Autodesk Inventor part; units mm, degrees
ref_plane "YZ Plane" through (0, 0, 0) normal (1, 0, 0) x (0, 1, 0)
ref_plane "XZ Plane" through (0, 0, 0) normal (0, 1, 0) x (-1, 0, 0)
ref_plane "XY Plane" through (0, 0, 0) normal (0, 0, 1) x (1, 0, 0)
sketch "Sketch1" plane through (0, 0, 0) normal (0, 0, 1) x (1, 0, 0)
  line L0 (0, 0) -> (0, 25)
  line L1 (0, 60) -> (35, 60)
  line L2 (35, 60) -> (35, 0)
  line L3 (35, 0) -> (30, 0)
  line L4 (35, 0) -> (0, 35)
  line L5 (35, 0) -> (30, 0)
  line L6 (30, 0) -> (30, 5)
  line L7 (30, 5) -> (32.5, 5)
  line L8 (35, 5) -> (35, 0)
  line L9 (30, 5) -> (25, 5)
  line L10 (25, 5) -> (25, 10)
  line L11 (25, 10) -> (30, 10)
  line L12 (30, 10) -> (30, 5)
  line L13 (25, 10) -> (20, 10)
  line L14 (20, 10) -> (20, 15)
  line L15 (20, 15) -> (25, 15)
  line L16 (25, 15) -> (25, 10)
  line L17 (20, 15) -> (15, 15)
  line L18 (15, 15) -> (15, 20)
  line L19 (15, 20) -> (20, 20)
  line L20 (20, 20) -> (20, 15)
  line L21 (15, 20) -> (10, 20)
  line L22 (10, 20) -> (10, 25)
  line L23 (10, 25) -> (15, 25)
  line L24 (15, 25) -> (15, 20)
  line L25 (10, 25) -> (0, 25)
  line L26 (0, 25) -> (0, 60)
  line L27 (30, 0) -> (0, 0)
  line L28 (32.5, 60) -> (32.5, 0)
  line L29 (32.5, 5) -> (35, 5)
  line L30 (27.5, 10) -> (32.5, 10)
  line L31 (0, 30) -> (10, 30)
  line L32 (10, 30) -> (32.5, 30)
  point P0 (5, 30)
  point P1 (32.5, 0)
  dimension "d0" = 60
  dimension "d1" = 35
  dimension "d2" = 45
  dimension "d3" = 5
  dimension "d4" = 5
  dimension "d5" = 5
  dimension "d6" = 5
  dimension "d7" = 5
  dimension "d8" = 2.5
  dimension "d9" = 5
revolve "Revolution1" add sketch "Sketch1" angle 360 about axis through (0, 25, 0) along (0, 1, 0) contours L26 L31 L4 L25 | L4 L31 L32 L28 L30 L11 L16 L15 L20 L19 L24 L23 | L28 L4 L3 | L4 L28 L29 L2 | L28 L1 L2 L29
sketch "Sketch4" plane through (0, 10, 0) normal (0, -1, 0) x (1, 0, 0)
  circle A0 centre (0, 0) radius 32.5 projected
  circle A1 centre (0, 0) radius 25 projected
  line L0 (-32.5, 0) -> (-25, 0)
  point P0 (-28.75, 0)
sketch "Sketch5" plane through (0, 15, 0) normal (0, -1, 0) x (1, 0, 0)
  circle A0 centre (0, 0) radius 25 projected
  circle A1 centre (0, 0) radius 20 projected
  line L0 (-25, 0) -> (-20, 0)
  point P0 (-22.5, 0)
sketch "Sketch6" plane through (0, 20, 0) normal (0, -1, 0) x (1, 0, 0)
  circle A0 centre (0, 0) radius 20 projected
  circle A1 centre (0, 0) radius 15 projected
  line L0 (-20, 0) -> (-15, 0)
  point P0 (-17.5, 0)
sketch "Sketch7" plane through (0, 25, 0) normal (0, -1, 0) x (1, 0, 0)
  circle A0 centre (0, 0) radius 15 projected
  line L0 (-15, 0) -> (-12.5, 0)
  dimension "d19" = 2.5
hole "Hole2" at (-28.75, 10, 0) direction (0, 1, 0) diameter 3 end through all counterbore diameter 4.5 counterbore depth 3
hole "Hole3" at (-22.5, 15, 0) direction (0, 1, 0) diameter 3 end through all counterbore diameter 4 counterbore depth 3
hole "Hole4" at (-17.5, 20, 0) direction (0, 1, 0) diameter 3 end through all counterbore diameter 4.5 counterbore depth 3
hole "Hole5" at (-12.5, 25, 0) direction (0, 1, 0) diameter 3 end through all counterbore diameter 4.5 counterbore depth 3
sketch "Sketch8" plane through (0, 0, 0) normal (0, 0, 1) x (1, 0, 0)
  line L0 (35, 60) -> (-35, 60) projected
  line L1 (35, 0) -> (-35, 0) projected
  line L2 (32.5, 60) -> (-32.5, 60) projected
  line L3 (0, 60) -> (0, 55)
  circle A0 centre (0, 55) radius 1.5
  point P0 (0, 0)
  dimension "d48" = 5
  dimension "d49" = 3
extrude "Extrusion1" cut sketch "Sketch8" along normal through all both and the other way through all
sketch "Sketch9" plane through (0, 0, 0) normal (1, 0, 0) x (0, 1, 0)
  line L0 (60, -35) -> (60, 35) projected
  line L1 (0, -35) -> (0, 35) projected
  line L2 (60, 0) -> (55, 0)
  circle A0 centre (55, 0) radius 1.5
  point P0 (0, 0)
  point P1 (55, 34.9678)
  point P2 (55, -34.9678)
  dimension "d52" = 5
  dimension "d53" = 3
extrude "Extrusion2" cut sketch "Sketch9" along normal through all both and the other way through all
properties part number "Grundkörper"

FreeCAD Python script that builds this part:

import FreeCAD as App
import Part
import Sketcher

V = App.Vector

doc = App.newDocument("Part")
body = doc.addObject("PartDesign::Body", "Body")

sketch1 = body.newObject("Sketcher::SketchObject", "Sketch")
sketch1.AttachmentSupport = (doc.getObject("XY_Plane"), [""])
sketch1.MapMode = "FlatFace"
sketch1.addGeometry([
    Part.LineSegment(V(0, 30, 0), V(0, 25, 0)),
    Part.LineSegment(V(0, 25, 0), V(15, 25, 0)),
    Part.LineSegment(V(15, 25, 0), V(15, 20, 0)),
    Part.LineSegment(V(15, 20, 0), V(20, 20, 0)),
    Part.LineSegment(V(20, 20, 0), V(20, 15, 0)),
    Part.LineSegment(V(20, 15, 0), V(25, 15, 0)),
    Part.LineSegment(V(25, 15, 0), V(25, 10, 0)),
    Part.LineSegment(V(25, 10, 0), V(32.5, 10, 0)),
    Part.LineSegment(V(32.5, 10, 0), V(32.5, 0, 0)),
    Part.LineSegment(V(32.5, 0, 0), V(35, 0, 0)),
    Part.LineSegment(V(35, 0, 0), V(35, 60, 0)),
    Part.LineSegment(V(35, 60, 0), V(32.5, 60, 0)),
    Part.LineSegment(V(32.5, 60, 0), V(32.5, 30, 0)),
    Part.LineSegment(V(32.5, 30, 0), V(0, 30, 0)),
], False)
sketch1.addConstraint([
    Sketcher.Constraint("Coincident", 0, 2, 1, 1),
    Sketcher.Constraint("Coincident", 1, 2, 2, 1),
    Sketcher.Constraint("Coincident", 2, 2, 3, 1),
    Sketcher.Constraint("Coincident", 3, 2, 4, 1),
    Sketcher.Constraint("Coincident", 4, 2, 5, 1),
    Sketcher.Constraint("Coincident", 5, 2, 6, 1),
    Sketcher.Constraint("Coincident", 6, 2, 7, 1),
    Sketcher.Constraint("Coincident", 7, 2, 8, 1),
    Sketcher.Constraint("Coincident", 8, 2, 9, 1),
    Sketcher.Constraint("Coincident", 9, 2, 10, 1),
    Sketcher.Constraint("Coincident", 10, 2, 11, 1),
    Sketcher.Constraint("Coincident", 11, 2, 12, 1),
    Sketcher.Constraint("Coincident", 12, 2, 13, 1),
    Sketcher.Constraint("Coincident", 13, 2, 0, 1),
    Sketcher.Constraint("Vertical", 0),
    Sketcher.Constraint("Horizontal", 1),
    Sketcher.Constraint("Vertical", 2),
    Sketcher.Constraint("Horizontal", 3),
    Sketcher.Constraint("Vertical", 4),
    Sketcher.Constraint("Horizontal", 5),
    Sketcher.Constraint("Vertical", 6),
    Sketcher.Constraint("Horizontal", 7),
    Sketcher.Constraint("Vertical", 8),
    Sketcher.Constraint("Horizontal", 9),
    Sketcher.Constraint("Vertical", 10),
    Sketcher.Constraint("Horizontal", 11),
    Sketcher.Constraint("Vertical", 12),
    Sketcher.Constraint("Horizontal", 13),
    Sketcher.Constraint("PointOnObject", 0, 2, -2),
    Sketcher.Constraint("PointOnObject", 8, 2, -1),
    Sketcher.Constraint("Vertical", 8, 2, 11, 2),
    Sketcher.Constraint("Equal", 3, 5),
    Sketcher.Constraint("Equal", 5, 0),
    Sketcher.Constraint("Equal", 0, 2),
    Sketcher.Constraint("Equal", 2, 4),
    Sketcher.Constraint("Equal", 4, 6),
    Sketcher.Constraint("DistanceX", 3, 1, 3, 2, 5.0),
    Sketcher.Constraint("DistanceY", 10, 1, 10, 2, 60.0),
    Sketcher.Constraint("DistanceX", 9, 1, 9, 2, 2.5),
    Sketcher.Constraint("DistanceX", -1, 1, 9, 2, 35.0),
    Sketcher.Constraint("DistanceY", 1, 2, 10, 2, 35.0),
    Sketcher.Constraint("DistanceX", 1, 1, 1, 2, 15.0),
])
revolution = body.newObject("PartDesign::Revolution", "Revolution")
revolution.Profile = sketch1
revolution.ReferenceAxis = (sketch1, ["V_Axis"])
revolution.Angle = 360

sketch2 = body.newObject("Sketcher::SketchObject", "Sketch001")
sketch2.AttachmentSupport = (doc.getObject("XZ_Plane"), [""])
sketch2.MapMode = "FlatFace"
sketch2.AttachmentOffset = App.Placement(V(0, 0, -10), App.Rotation())
sketch2.addGeometry(Part.Circle(V(-28.8, 0, 0), V(0, 0, 1), 1.5), False)
sketch2.addConstraint([
    Sketcher.Constraint("PointOnObject", 0, 3, -1),
    Sketcher.Constraint("Diameter", 0, 3.0),
    Sketcher.Constraint("DistanceX", 0, 3, -1, 1, 28.75),
])
doc.recompute()
hole = body.newObject("PartDesign::Hole", "Hole")
hole.Profile = sketch2
hole.ThreadType = "None"
hole.Diameter = 3
hole.DepthType = "ThroughAll"
hole.HoleCutType = "Counterbore"
hole.HoleCutDiameter = 4.5
hole.HoleCutDepth = 3

sketch3 = body.newObject("Sketcher::SketchObject", "Sketch002")
sketch3.AttachmentSupport = (doc.getObject("XZ_Plane"), [""])
sketch3.MapMode = "FlatFace"
sketch3.AttachmentOffset = App.Placement(V(0, 0, -15), App.Rotation())
sketch3.addGeometry(Part.Circle(V(-22.5, 0, 0), V(0, 0, 1), 1.5), False)
sketch3.addConstraint([
    Sketcher.Constraint("PointOnObject", 0, 3, -1),
    Sketcher.Constraint("Diameter", 0, 3.0),
    Sketcher.Constraint("DistanceX", 0, 3, -1, 1, 22.5),
])
doc.recompute()
hole2 = body.newObject("PartDesign::Hole", "Hole001")
hole2.Profile = sketch3
hole2.ThreadType = "None"
hole2.Diameter = 3
hole2.DepthType = "ThroughAll"
hole2.HoleCutType = "Counterbore"
hole2.HoleCutDiameter = 4
hole2.HoleCutDepth = 3

sketch4 = body.newObject("Sketcher::SketchObject", "Sketch003")
sketch4.AttachmentSupport = (doc.getObject("XZ_Plane"), [""])
sketch4.MapMode = "FlatFace"
sketch4.AttachmentOffset = App.Placement(V(0, 0, -20), App.Rotation())
sketch4.addGeometry(Part.Circle(V(-17.5, 0, 0), V(0, 0, 1), 1.5), False)
sketch4.addConstraint([
    Sketcher.Constraint("PointOnObject", 0, 3, -1),
    Sketcher.Constraint("Diameter", 0, 3.0),
    Sketcher.Constraint("DistanceX", 0, 3, -1, 1, 17.5),
])
doc.recompute()
hole3 = body.newObject("PartDesign::Hole", "Hole002")
hole3.Profile = sketch4
hole3.ThreadType = "None"
hole3.Diameter = 3
hole3.DepthType = "ThroughAll"
hole3.HoleCutType = "Counterbore"
hole3.HoleCutDiameter = 4.5
hole3.HoleCutDepth = 3

sketch5 = body.newObject("Sketcher::SketchObject", "Sketch004")
sketch5.AttachmentSupport = (doc.getObject("XZ_Plane"), [""])
sketch5.MapMode = "FlatFace"
sketch5.AttachmentOffset = App.Placement(V(0, 0, -25), App.Rotation())
sketch5.addGeometry(Part.Circle(V(-12.5, 0, 0), V(0, 0, 1), 1.5), False)
sketch5.addConstraint([
    Sketcher.Constraint("PointOnObject", 0, 3, -1),
    Sketcher.Constraint("Diameter", 0, 3.0),
    Sketcher.Constraint("DistanceX", 0, 3, -1, 1, 12.5),
])
doc.recompute()
hole4 = body.newObject("PartDesign::Hole", "Hole003")
hole4.Profile = sketch5
hole4.ThreadType = "None"
hole4.Diameter = 3
hole4.DepthType = "ThroughAll"
hole4.HoleCutType = "Counterbore"
hole4.HoleCutDiameter = 4.5
hole4.HoleCutDepth = 3

sketch6 = body.newObject("Sketcher::SketchObject", "Sketch005")
sketch6.AttachmentSupport = (doc.getObject("XY_Plane"), [""])
sketch6.MapMode = "FlatFace"
sketch6.addGeometry(Part.Circle(V(0, 55, 0), V(0, 0, 1), 1.5), False)
sketch6.addConstraint([
    Sketcher.Constraint("PointOnObject", 0, 3, -2),
    Sketcher.Constraint("Diameter", 0, 3.0),
    Sketcher.Constraint("DistanceY", -1, 1, 0, 3, 55.0),
])
pocket1 = body.newObject("PartDesign::Pocket", "Pocket")
pocket1.Profile = sketch6
pocket1.Type = "ThroughAll"
pocket1.Midplane = True

sketch7 = body.newObject("Sketcher::SketchObject", "Sketch006")
sketch7.AttachmentSupport = (doc.getObject("YZ_Plane"), [""])
sketch7.MapMode = "FlatFace"
sketch7.addGeometry(Part.Circle(V(55, 0, 0), V(0, 0, 1), 1.5), False)
sketch7.addConstraint([
    Sketcher.Constraint("PointOnObject", 0, 3, -1),
    Sketcher.Constraint("Diameter", 0, 3.0),
    Sketcher.Constraint("DistanceX", -1, 1, 0, 3, 55.0),
])
pocket2 = body.newObject("PartDesign::Pocket", "Pocket001")
pocket2.Profile = sketch7
pocket2.Type = "ThroughAll"
pocket2.Midplane = True

doc.recompute()
